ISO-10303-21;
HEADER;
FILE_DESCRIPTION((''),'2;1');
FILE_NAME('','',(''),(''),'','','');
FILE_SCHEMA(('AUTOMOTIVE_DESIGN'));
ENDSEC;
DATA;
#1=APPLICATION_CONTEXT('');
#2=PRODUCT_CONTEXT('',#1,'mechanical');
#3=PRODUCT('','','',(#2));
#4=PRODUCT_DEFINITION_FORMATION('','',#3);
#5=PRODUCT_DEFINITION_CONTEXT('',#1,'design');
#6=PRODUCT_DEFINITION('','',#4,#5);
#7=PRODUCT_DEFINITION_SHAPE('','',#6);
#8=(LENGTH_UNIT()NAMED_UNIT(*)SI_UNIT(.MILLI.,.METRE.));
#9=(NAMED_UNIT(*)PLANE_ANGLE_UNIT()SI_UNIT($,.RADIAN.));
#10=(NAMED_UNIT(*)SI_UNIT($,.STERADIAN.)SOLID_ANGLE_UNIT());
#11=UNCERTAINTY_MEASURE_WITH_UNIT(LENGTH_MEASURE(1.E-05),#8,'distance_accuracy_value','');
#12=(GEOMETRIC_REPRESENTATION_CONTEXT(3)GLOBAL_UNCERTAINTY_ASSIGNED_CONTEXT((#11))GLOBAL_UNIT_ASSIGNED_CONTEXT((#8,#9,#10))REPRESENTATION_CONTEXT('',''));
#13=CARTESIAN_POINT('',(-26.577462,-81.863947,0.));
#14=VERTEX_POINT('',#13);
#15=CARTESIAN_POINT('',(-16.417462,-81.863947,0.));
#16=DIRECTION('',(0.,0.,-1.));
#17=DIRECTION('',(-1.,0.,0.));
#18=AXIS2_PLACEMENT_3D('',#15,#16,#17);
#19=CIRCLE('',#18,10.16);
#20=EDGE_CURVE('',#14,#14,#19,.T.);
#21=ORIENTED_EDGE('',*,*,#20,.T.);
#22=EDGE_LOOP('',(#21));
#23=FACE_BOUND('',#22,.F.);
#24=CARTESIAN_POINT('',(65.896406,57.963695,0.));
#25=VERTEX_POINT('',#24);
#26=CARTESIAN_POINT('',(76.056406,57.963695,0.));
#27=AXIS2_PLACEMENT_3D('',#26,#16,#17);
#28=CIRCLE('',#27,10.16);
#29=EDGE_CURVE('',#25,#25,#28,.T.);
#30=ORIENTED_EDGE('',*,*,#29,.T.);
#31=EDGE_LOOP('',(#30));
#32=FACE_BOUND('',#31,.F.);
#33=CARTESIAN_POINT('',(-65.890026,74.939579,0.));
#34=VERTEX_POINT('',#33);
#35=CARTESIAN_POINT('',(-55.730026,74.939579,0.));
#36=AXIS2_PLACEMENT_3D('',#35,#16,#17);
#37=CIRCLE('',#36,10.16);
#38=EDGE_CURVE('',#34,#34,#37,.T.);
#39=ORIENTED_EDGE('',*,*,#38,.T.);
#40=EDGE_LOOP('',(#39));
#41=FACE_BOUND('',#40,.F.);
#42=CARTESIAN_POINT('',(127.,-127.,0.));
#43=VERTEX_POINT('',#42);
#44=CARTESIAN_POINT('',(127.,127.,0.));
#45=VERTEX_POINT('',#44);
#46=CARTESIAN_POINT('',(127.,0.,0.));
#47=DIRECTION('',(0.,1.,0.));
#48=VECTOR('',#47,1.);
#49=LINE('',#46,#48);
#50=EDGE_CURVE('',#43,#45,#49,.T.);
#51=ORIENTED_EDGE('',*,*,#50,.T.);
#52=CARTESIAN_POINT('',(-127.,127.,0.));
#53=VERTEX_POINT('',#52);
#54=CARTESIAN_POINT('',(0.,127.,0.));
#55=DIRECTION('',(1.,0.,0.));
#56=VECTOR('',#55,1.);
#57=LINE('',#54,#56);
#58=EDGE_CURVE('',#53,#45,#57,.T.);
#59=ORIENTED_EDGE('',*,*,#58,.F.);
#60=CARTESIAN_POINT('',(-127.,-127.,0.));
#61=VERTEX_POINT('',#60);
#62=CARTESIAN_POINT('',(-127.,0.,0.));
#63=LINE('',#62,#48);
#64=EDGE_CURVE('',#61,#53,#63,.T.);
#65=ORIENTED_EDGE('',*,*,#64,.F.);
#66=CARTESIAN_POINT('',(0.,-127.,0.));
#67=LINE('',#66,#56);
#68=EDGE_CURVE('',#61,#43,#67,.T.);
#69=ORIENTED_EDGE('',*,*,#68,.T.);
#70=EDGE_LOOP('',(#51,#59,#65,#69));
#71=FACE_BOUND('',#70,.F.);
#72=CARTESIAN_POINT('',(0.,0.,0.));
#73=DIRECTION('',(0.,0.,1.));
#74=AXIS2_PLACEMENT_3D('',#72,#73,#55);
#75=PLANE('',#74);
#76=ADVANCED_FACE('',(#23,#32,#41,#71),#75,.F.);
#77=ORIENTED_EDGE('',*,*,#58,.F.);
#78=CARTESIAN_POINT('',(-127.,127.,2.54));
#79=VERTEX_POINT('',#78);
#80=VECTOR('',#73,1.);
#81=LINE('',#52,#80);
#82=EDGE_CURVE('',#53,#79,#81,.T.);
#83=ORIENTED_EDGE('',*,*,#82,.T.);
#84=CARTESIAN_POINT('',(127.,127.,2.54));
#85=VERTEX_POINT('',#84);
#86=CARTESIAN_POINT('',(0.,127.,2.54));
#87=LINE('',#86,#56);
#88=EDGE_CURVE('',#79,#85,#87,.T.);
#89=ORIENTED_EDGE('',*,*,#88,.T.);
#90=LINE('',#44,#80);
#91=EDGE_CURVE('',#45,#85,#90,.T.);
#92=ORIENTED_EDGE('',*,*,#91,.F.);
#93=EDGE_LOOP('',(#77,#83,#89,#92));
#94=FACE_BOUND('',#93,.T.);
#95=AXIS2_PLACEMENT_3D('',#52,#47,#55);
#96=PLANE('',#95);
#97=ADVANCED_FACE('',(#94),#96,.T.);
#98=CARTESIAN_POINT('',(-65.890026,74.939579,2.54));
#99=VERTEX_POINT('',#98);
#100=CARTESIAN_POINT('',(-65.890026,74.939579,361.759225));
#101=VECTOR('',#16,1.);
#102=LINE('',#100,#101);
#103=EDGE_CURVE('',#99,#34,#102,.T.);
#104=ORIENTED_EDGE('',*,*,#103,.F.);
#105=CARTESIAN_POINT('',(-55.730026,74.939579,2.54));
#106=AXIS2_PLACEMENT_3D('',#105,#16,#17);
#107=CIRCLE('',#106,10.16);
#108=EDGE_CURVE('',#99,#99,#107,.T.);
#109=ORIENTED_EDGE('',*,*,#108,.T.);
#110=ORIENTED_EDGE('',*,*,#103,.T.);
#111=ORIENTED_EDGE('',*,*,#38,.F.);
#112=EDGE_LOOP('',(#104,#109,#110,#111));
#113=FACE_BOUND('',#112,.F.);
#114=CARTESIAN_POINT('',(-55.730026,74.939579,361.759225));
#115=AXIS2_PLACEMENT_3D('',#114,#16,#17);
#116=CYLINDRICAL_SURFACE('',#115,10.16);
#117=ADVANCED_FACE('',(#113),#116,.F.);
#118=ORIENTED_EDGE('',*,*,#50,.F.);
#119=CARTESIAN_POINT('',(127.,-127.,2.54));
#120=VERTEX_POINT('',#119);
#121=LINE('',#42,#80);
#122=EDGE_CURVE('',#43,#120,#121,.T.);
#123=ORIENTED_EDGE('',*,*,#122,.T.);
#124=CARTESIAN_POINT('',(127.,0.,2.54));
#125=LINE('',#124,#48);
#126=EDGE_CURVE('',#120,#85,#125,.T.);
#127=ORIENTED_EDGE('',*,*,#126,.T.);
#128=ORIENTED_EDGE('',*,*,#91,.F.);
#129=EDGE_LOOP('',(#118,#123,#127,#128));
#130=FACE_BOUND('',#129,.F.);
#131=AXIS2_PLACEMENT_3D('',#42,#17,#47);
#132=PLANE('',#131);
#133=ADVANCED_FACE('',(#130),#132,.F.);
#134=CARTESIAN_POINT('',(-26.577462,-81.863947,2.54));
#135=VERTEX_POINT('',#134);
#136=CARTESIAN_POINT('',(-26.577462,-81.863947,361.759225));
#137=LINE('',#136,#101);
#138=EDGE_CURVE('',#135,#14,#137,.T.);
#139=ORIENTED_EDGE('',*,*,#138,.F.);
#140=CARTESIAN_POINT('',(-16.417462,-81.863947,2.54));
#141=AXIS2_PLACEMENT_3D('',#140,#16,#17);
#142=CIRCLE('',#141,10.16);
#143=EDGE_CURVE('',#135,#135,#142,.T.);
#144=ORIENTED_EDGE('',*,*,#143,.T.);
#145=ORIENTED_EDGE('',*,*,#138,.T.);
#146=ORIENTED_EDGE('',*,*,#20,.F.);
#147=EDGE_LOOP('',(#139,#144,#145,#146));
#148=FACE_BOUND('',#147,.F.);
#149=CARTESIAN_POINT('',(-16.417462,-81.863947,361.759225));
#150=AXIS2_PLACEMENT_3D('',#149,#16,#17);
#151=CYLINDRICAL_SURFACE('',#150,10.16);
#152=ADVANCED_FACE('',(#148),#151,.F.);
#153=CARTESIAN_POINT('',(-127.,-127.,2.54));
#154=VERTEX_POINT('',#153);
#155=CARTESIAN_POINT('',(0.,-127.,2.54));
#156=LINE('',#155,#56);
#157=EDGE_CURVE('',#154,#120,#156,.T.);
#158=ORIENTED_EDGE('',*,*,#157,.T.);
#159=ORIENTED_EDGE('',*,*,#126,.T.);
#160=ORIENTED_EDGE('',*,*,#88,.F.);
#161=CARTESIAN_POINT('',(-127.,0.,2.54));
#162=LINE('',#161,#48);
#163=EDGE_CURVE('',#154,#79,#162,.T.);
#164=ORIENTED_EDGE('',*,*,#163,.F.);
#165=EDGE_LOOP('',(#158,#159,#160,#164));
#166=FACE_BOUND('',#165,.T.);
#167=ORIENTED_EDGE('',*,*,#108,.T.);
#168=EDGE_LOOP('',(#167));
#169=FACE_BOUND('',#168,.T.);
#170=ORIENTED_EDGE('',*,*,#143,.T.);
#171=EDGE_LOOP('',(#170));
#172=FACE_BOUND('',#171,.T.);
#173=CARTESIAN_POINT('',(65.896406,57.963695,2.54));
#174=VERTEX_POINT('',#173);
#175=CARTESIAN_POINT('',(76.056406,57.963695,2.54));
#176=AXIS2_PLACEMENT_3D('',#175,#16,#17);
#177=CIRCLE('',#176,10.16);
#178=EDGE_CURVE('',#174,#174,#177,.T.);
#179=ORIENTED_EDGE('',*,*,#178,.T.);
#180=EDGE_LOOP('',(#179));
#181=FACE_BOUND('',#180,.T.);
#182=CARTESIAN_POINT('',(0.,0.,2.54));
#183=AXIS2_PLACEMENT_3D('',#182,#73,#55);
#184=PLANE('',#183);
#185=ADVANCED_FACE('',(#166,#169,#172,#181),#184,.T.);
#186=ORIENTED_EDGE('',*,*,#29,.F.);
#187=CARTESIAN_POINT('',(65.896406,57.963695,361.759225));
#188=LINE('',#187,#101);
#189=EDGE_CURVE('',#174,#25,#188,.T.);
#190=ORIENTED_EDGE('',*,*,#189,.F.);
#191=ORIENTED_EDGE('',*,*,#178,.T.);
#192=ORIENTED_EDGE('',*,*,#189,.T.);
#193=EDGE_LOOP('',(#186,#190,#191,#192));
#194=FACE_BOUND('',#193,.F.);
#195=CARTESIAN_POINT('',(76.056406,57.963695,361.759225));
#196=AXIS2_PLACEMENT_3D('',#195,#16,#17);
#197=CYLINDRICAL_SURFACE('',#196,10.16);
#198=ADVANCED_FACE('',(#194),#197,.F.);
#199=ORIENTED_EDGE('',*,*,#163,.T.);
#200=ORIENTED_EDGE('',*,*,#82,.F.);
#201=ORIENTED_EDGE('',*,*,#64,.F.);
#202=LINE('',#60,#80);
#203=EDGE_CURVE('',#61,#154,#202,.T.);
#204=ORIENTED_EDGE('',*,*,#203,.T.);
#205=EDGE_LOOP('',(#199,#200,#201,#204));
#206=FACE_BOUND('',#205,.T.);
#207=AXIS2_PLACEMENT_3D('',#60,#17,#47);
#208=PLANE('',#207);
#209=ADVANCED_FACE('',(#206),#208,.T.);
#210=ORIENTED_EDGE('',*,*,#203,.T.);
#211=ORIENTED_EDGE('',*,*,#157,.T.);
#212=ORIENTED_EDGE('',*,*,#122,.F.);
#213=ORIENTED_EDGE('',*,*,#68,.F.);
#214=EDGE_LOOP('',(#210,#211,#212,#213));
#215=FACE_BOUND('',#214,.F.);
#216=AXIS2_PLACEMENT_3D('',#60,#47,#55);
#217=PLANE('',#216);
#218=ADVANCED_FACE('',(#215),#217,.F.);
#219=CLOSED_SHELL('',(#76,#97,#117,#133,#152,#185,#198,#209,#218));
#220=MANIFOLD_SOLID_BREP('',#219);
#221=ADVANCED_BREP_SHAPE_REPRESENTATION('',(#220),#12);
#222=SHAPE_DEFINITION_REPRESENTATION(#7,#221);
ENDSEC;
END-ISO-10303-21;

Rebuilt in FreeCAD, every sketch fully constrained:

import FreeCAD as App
import Part
import Sketcher
from FreeCAD import Vector
Q = App.Units.Quantity

doc = App.newDocument("Part")
params = doc.addObject("Spreadsheet::Sheet", "Params")
for row, (alias, value) in enumerate([
    ("sketch1_width", "10 in"),
    ("pad1_length", "0.1 in"),
    ("sketch2_diameter", "0.8 in"),
    ("hole_diameter", "0.8 in"),
], start=1):
    params.set(f"A{row}", alias)
    params.set(f"B{row}", "=" + value)
    params.setAlias(f"B{row}", alias)

body = doc.addObject("PartDesign::Body", "Body")

sketch1 = body.newObject("Sketcher::SketchObject", "Sketch")
sketch1.AttachmentSupport = (doc.getObject("XY_Plane"), [""])
sketch1.MapMode = "FlatFace"
sketch1.addGeometry([
    Part.LineSegment(Vector(-127, 127, 0), Vector(-127, -127, 0)),
    Part.LineSegment(Vector(-127, -127, 0), Vector(127, -127, 0)),
    Part.LineSegment(Vector(127, -127, 0), Vector(127, 127, 0)),
    Part.LineSegment(Vector(127, 127, 0), Vector(-127, 127, 0)),
], False)
sketch1.addConstraint([
    Sketcher.Constraint("Coincident", 0, 2, 1, 1),
    Sketcher.Constraint("Coincident", 1, 2, 2, 1),
    Sketcher.Constraint("Coincident", 2, 2, 3, 1),
    Sketcher.Constraint("Coincident", 3, 2, 0, 1),
    Sketcher.Constraint("Vertical", 0),
    Sketcher.Constraint("Horizontal", 1),
    Sketcher.Constraint("Vertical", 2),
    Sketcher.Constraint("Horizontal", 3),
    Sketcher.Constraint("Symmetric", 0, 2, 2, 2, -1, 1),
    Sketcher.Constraint("Equal", 3, 0),
    Sketcher.Constraint("DistanceX", 1, 1, 1, 2, Q("10 in")),
])
sketch1.setExpression("Constraints[10]", "Params.sketch1_width")
pad1 = body.newObject("PartDesign::Pad", "Pad")
pad1.Profile = sketch1
pad1.setExpression("Length", "Params.pad1_length")

sketch2 = body.newObject("Sketcher::SketchObject", "Sketch001")
sketch2.AttachmentSupport = (doc.getObject("XY_Plane"), [""])
sketch2.MapMode = "FlatFace"
sketch2.AttachmentOffset = App.Placement(Vector(0, 0, 0.1 * 25.4), App.Rotation())
sketch2.addGeometry([
    Part.Circle(Vector(-55.730026, 74.939579, 0), Vector(0, 0, 1), 10.16),
    Part.Circle(Vector(76.056406, 57.963695, 0), Vector(0, 0, 1), 10.16),
    Part.Circle(Vector(-16.417462, -81.863947, 0), Vector(0, 0, 1), 10.16),
], False)
sketch2.addConstraint([
    Sketcher.Constraint("Equal", 0, 1),
    Sketcher.Constraint("Equal", 1, 2),
    Sketcher.Constraint("Diameter", 0, Q("0.8 in")),
    Sketcher.Constraint("DistanceY", -1, 1, 0, 3, 74.939579),
    Sketcher.Constraint("DistanceX", 0, 3, 1, 3, 131.786432),
    Sketcher.Constraint("DistanceY", 2, 3, 1, 3, 139.827642),
    Sketcher.Constraint("DistanceX", 0, 3, -1, 1, 55.730026),
    Sketcher.Constraint("DistanceY", -1, 1, 1, 3, 57.963695),
    Sketcher.Constraint("DistanceX", 2, 3, -1, 1, 16.417462),
])
sketch2.setExpression("Constraints[2]", "Params.sketch2_diameter")
doc.recompute()
hole = body.newObject("PartDesign::Hole", "Hole")
hole.Profile = sketch2
hole.ThreadType = "None"
hole.setExpression("Diameter", "Params.hole_diameter")
hole.DepthType = "ThroughAll"

doc.recompute()
